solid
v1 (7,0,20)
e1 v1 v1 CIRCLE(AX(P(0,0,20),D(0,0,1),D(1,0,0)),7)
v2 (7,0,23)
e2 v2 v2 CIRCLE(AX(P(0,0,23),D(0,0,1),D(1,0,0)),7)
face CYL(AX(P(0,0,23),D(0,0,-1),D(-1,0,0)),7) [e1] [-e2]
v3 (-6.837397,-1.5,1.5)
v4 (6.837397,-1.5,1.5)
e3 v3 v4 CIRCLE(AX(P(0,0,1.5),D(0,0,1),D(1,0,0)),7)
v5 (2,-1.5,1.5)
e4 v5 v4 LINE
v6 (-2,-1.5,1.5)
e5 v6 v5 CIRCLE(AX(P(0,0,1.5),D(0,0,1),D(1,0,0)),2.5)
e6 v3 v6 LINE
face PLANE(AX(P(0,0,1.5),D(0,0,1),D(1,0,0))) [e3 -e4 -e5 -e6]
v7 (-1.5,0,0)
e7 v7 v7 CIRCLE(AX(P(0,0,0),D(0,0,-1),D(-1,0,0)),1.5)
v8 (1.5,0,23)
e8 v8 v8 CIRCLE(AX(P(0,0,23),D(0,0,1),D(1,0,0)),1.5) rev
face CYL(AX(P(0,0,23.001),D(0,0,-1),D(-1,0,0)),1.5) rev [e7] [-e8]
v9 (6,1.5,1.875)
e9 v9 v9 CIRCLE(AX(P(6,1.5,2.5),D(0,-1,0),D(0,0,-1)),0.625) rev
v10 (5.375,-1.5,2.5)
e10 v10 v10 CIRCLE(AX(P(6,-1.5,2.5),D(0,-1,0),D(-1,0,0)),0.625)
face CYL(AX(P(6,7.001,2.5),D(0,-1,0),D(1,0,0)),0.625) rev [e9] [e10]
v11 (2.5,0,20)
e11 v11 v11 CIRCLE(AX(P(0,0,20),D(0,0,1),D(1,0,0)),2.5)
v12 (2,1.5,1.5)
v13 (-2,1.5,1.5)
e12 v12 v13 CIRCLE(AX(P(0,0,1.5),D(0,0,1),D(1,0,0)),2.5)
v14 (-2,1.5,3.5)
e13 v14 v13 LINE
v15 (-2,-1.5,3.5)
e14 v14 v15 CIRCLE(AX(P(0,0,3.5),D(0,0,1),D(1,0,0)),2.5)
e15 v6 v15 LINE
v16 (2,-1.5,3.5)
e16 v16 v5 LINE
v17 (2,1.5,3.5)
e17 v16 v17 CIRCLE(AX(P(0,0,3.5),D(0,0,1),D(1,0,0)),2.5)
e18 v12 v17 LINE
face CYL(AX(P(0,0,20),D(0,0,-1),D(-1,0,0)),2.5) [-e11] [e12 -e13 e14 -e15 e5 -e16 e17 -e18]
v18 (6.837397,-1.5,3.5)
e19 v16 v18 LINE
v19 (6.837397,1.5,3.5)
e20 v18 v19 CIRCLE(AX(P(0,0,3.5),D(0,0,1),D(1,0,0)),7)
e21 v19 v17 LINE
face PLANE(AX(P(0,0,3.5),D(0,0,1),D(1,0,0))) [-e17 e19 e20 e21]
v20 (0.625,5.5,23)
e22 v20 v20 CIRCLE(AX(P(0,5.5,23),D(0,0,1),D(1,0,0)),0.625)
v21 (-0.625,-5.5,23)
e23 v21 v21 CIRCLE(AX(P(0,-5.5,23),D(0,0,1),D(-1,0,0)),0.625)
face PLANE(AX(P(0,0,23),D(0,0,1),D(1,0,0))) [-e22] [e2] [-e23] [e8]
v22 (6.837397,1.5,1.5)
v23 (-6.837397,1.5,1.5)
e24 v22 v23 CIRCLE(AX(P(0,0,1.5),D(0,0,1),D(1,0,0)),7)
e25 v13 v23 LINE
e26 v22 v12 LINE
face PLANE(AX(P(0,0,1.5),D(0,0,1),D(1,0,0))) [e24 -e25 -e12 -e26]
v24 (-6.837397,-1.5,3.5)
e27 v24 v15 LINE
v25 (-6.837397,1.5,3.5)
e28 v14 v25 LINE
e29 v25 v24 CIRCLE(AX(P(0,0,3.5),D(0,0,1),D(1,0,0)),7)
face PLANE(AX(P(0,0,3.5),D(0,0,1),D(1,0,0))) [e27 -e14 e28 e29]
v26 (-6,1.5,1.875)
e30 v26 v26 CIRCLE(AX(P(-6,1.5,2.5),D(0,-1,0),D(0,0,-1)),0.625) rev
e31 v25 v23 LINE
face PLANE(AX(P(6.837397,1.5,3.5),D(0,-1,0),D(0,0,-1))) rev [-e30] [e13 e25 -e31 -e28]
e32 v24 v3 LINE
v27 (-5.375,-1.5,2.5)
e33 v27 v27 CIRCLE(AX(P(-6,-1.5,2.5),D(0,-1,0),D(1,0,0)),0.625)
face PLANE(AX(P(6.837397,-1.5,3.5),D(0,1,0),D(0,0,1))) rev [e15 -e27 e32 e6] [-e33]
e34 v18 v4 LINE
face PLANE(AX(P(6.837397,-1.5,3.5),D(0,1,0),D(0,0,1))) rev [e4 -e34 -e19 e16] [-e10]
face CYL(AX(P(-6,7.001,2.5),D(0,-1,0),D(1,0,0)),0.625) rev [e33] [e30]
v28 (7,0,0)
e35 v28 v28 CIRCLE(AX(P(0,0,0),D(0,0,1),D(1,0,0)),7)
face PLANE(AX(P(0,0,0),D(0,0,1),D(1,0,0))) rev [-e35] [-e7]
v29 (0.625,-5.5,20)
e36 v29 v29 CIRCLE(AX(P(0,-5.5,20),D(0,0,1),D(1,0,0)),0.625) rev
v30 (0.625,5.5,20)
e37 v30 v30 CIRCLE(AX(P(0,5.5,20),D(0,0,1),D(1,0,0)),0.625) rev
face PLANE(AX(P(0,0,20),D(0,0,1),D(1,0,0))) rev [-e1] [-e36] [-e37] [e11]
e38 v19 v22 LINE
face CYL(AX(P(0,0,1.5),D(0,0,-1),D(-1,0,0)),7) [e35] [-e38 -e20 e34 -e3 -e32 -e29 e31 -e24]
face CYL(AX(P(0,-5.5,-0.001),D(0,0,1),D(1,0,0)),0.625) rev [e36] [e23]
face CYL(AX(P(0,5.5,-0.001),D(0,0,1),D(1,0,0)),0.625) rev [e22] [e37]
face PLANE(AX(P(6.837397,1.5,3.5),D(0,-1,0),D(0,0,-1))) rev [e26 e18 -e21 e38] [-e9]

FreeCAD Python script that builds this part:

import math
import FreeCAD as App
import Part
import Sketcher
Q = App.Units.Quantity

doc = App.newDocument("Part")
body = doc.addObject("PartDesign::Body", "Body")

sketch1 = body.newObject("Sketcher::SketchObject", "Sketch")
sketch1.AttachmentSupport = (doc.getObject("XY_Plane"), [""])
sketch1.MapMode = "FlatFace"
sketch1.addGeometry(Part.Circle(App.Vector(0, 0, 0), App.Vector(0, 0, 1), 7), False)
sketch1.addConstraint([
    Sketcher.Constraint("Coincident", 0, 3, -1, 1),
    Sketcher.Constraint("Diameter", 0, Q("14 mm")),
])
pad1 = body.newObject("PartDesign::Pad", "Pad")
pad1.Profile = sketch1
pad1.Length = 1.5

sketch2 = body.newObject("Sketcher::SketchObject", "Sketch001")
sketch2.AttachmentSupport = (doc.getObject("XY_Plane"), [""])
sketch2.MapMode = "FlatFace"
sketch2.AttachmentOffset = App.Placement(App.Vector(0, 0, 1.5), App.Rotation())
sketch2.addGeometry(Part.Circle(App.Vector(0, 0, 0), App.Vector(0, 0, 1), 2.5), False)
sketch2.addConstraint([
    Sketcher.Constraint("Coincident", 0, 3, -1, 1),
    Sketcher.Constraint("Diameter", 0, Q("5 mm")),
])
pad2 = body.newObject("PartDesign::Pad", "Pad001")
pad2.Profile = sketch2
pad2.Length = 18.5

sketch3 = body.newObject("Sketcher::SketchObject", "Sketch002")
sketch3.AttachmentSupport = (doc.getObject("XY_Plane"), [""])
sketch3.MapMode = "FlatFace"
sketch3.AttachmentOffset = App.Placement(App.Vector(0, 0, 20), App.Rotation())
sketch3.addGeometry(Part.Circle(App.Vector(0, 0, 0), App.Vector(0, 0, 1), 7), False)
sketch3.addConstraint([
    Sketcher.Constraint("Coincident", 0, 3, -1, 1),
    Sketcher.Constraint("Diameter", 0, Q("14 mm")),
])
pad3 = body.newObject("PartDesign::Pad", "Pad002")
pad3.Profile = sketch3
pad3.Length = 3

sketch4 = body.newObject("Sketcher::SketchObject", "Sketch003")
sketch4.AttachmentSupport = (doc.getObject("XY_Plane"), [""])
sketch4.MapMode = "FlatFace"
sketch4.addGeometry(Part.Circle(App.Vector(0, 0, 0), App.Vector(0, 0, 1), 1.5), False)
sketch4.addConstraint([
    Sketcher.Constraint("Coincident", 0, 3, -1, 1),
    Sketcher.Constraint("Diameter", 0, Q("3 mm")),
])
pocket1 = body.newObject("PartDesign::Pocket", "Pocket")
pocket1.Profile = sketch4
pocket1.Type = "UpToFirst"
pocket1.Reversed = True

sketch5 = body.newObject("Sketcher::SketchObject", "Sketch004")
sketch5.AttachmentSupport = (doc.getObject("XY_Plane"), [""])
sketch5.MapMode = "FlatFace"
sketch5.AttachmentOffset = App.Placement(App.Vector(0, 0, 23), App.Rotation())
sketch5.addGeometry(Part.Circle(App.Vector(0, 5.5, 0), App.Vector(0, 0, 1), 0.6), False)
sketch5.addConstraint([
    Sketcher.Constraint("PointOnObject", 0, 3, -2),
    Sketcher.Constraint("Diameter", 0, Q("1.25 mm")),
    Sketcher.Constraint("DistanceY", -1, 1, 0, 3, Q("5.5 mm")),
])
pocket2 = body.newObject("PartDesign::Pocket", "Pocket001")
pocket2.Profile = sketch5
pocket2.Type = "UpToFirst"

sketch6 = body.newObject("Sketcher::SketchObject", "Sketch005")
sketch6.AttachmentSupport = (doc.getObject("XY_Plane"), [""])
sketch6.MapMode = "FlatFace"
sketch6.AttachmentOffset = App.Placement(App.Vector(0, 0, 23), App.Rotation())
sketch6.addGeometry(Part.Circle(App.Vector(0, -5.5, 0), App.Vector(0, 0, 1), 0.6), False)
sketch6.addConstraint([
    Sketcher.Constraint("PointOnObject", 0, 3, -2),
    Sketcher.Constraint("Diameter", 0, Q("1.25 mm")),
    Sketcher.Constraint("DistanceY", 0, 3, -1, 1, Q("5.5 mm")),
])
pocket3 = body.newObject("PartDesign::Pocket", "Pocket002")
pocket3.Profile = sketch6
pocket3.Type = "UpToFirst"

sketch7 = body.newObject("Sketcher::SketchObject", "Sketch006")
sketch7.AttachmentSupport = (doc.getObject("XY_Plane"), [""])
sketch7.MapMode = "FlatFace"
sketch7.AttachmentOffset = App.Placement(App.Vector(0, 0, 1.5), App.Rotation())
sketch7.addGeometry([
    Part.LineSegment(App.Vector(-6.8, -1.5, 0), App.Vector(6.8, -1.5, 0)),
    Part.ArcOfCircle(Part.Circle(App.Vector(0, 0, 0), App.Vector(0, 0, 1), 7), math.radians(-12), math.radians(12)),
    Part.LineSegment(App.Vector(6.8, 1.5, 0), App.Vector(-6.8, 1.5, 0)),
    Part.ArcOfCircle(Part.Circle(App.Vector(0, 0, 0), App.Vector(0, 0, 1), 7), math.radians(168), math.radians(192)),
], False)
sketch7.addConstraint([
    Sketcher.Constraint("Coincident", 0, 2, 1, 1),
    Sketcher.Constraint("Coincident", 1, 2, 2, 1),
    Sketcher.Constraint("Coincident", 2, 2, 3, 1),
    Sketcher.Constraint("Coincident", 3, 2, 0, 1),
    Sketcher.Constraint("Horizontal", 0),
    Sketcher.Constraint("Horizontal", 2),
    Sketcher.Constraint("Coincident", 1, 3, -1, 1),
    Sketcher.Constraint("Coincident", 3, 3, -1, 1),
    Sketcher.Constraint("Equal", 1, 3),
    Sketcher.Constraint("Vertical", 0, 2, 1, 2),
    Sketcher.Constraint("DistanceY", 0, 2, 1, 2, Q("3 mm")),
    Sketcher.Constraint("Radius", 1, Q("6.999993 mm")),
])
pad4 = body.newObject("PartDesign::Pad", "Pad003")
pad4.Profile = sketch7
pad4.Length = 2

sketch8 = body.newObject("Sketcher::SketchObject", "Sketch007")
sketch8.AttachmentSupport = (doc.getObject("XZ_Plane"), [""])
sketch8.MapMode = "FlatFace"
sketch8.AttachmentOffset = App.Placement(App.Vector(0, 0, 1.5), App.Rotation())
sketch8.addGeometry(Part.Circle(App.Vector(-6, 2.5, 0), App.Vector(0, 0, 1), 0.6), False)
sketch8.addConstraint([
    Sketcher.Constraint("Diameter", 0, Q("1.25 mm")),
    Sketcher.Constraint("DistanceX", 0, 3, -1, 1, Q("6 mm")),
    Sketcher.Constraint("DistanceY", -1, 1, 0, 3, Q("2.5 mm")),
])
pocket4 = body.newObject("PartDesign::Pocket", "Pocket003")
pocket4.Profile = sketch8
pocket4.Type = "UpToFirst"

sketch9 = body.newObject("Sketcher::SketchObject", "Sketch008")
sketch9.AttachmentSupport = (doc.getObject("XZ_Plane"), [""])
sketch9.MapMode = "FlatFace"
sketch9.AttachmentOffset = App.Placement(App.Vector(0, 0, 1.5), App.Rotation())
sketch9.addGeometry(Part.Circle(App.Vector(6, 2.5, 0), App.Vector(0, 0, 1), 0.6), False)
sketch9.addConstraint([
    Sketcher.Constraint("Diameter", 0, Q("1.25 mm")),
    Sketcher.Constraint("DistanceX", -1, 1, 0, 3, Q("6 mm")),
    Sketcher.Constraint("DistanceY", -1, 1, 0, 3, Q("2.5 mm")),
])
pocket5 = body.newObject("PartDesign::Pocket", "Pocket004")
pocket5.Profile = sketch9
pocket5.Type = "UpToFirst"

sketch10 = body.newObject("Sketcher::SketchObject", "Sketch009")
sketch10.AttachmentSupport = (doc.getObject("XY_Plane"), [""])
sketch10.MapMode = "FlatFace"
sketch10.AttachmentOffset = App.Placement(App.Vector(0, 0, 1.5), App.Rotation())
sketch10.addGeometry(Part.Circle(App.Vector(0, 0, 0), App.Vector(0, 0, 1), 1.5), False)
sketch10.addConstraint([
    Sketcher.Constraint("Coincident", 0, 3, -1, 1),
    Sketcher.Constraint("Diameter", 0, Q("3 mm")),
])
pocket6 = body.newObject("PartDesign::Pocket", "Pocket005")
pocket6.Profile = sketch10
pocket6.Type = "UpToFirst"
pocket6.Reversed = True

doc.recompute()
